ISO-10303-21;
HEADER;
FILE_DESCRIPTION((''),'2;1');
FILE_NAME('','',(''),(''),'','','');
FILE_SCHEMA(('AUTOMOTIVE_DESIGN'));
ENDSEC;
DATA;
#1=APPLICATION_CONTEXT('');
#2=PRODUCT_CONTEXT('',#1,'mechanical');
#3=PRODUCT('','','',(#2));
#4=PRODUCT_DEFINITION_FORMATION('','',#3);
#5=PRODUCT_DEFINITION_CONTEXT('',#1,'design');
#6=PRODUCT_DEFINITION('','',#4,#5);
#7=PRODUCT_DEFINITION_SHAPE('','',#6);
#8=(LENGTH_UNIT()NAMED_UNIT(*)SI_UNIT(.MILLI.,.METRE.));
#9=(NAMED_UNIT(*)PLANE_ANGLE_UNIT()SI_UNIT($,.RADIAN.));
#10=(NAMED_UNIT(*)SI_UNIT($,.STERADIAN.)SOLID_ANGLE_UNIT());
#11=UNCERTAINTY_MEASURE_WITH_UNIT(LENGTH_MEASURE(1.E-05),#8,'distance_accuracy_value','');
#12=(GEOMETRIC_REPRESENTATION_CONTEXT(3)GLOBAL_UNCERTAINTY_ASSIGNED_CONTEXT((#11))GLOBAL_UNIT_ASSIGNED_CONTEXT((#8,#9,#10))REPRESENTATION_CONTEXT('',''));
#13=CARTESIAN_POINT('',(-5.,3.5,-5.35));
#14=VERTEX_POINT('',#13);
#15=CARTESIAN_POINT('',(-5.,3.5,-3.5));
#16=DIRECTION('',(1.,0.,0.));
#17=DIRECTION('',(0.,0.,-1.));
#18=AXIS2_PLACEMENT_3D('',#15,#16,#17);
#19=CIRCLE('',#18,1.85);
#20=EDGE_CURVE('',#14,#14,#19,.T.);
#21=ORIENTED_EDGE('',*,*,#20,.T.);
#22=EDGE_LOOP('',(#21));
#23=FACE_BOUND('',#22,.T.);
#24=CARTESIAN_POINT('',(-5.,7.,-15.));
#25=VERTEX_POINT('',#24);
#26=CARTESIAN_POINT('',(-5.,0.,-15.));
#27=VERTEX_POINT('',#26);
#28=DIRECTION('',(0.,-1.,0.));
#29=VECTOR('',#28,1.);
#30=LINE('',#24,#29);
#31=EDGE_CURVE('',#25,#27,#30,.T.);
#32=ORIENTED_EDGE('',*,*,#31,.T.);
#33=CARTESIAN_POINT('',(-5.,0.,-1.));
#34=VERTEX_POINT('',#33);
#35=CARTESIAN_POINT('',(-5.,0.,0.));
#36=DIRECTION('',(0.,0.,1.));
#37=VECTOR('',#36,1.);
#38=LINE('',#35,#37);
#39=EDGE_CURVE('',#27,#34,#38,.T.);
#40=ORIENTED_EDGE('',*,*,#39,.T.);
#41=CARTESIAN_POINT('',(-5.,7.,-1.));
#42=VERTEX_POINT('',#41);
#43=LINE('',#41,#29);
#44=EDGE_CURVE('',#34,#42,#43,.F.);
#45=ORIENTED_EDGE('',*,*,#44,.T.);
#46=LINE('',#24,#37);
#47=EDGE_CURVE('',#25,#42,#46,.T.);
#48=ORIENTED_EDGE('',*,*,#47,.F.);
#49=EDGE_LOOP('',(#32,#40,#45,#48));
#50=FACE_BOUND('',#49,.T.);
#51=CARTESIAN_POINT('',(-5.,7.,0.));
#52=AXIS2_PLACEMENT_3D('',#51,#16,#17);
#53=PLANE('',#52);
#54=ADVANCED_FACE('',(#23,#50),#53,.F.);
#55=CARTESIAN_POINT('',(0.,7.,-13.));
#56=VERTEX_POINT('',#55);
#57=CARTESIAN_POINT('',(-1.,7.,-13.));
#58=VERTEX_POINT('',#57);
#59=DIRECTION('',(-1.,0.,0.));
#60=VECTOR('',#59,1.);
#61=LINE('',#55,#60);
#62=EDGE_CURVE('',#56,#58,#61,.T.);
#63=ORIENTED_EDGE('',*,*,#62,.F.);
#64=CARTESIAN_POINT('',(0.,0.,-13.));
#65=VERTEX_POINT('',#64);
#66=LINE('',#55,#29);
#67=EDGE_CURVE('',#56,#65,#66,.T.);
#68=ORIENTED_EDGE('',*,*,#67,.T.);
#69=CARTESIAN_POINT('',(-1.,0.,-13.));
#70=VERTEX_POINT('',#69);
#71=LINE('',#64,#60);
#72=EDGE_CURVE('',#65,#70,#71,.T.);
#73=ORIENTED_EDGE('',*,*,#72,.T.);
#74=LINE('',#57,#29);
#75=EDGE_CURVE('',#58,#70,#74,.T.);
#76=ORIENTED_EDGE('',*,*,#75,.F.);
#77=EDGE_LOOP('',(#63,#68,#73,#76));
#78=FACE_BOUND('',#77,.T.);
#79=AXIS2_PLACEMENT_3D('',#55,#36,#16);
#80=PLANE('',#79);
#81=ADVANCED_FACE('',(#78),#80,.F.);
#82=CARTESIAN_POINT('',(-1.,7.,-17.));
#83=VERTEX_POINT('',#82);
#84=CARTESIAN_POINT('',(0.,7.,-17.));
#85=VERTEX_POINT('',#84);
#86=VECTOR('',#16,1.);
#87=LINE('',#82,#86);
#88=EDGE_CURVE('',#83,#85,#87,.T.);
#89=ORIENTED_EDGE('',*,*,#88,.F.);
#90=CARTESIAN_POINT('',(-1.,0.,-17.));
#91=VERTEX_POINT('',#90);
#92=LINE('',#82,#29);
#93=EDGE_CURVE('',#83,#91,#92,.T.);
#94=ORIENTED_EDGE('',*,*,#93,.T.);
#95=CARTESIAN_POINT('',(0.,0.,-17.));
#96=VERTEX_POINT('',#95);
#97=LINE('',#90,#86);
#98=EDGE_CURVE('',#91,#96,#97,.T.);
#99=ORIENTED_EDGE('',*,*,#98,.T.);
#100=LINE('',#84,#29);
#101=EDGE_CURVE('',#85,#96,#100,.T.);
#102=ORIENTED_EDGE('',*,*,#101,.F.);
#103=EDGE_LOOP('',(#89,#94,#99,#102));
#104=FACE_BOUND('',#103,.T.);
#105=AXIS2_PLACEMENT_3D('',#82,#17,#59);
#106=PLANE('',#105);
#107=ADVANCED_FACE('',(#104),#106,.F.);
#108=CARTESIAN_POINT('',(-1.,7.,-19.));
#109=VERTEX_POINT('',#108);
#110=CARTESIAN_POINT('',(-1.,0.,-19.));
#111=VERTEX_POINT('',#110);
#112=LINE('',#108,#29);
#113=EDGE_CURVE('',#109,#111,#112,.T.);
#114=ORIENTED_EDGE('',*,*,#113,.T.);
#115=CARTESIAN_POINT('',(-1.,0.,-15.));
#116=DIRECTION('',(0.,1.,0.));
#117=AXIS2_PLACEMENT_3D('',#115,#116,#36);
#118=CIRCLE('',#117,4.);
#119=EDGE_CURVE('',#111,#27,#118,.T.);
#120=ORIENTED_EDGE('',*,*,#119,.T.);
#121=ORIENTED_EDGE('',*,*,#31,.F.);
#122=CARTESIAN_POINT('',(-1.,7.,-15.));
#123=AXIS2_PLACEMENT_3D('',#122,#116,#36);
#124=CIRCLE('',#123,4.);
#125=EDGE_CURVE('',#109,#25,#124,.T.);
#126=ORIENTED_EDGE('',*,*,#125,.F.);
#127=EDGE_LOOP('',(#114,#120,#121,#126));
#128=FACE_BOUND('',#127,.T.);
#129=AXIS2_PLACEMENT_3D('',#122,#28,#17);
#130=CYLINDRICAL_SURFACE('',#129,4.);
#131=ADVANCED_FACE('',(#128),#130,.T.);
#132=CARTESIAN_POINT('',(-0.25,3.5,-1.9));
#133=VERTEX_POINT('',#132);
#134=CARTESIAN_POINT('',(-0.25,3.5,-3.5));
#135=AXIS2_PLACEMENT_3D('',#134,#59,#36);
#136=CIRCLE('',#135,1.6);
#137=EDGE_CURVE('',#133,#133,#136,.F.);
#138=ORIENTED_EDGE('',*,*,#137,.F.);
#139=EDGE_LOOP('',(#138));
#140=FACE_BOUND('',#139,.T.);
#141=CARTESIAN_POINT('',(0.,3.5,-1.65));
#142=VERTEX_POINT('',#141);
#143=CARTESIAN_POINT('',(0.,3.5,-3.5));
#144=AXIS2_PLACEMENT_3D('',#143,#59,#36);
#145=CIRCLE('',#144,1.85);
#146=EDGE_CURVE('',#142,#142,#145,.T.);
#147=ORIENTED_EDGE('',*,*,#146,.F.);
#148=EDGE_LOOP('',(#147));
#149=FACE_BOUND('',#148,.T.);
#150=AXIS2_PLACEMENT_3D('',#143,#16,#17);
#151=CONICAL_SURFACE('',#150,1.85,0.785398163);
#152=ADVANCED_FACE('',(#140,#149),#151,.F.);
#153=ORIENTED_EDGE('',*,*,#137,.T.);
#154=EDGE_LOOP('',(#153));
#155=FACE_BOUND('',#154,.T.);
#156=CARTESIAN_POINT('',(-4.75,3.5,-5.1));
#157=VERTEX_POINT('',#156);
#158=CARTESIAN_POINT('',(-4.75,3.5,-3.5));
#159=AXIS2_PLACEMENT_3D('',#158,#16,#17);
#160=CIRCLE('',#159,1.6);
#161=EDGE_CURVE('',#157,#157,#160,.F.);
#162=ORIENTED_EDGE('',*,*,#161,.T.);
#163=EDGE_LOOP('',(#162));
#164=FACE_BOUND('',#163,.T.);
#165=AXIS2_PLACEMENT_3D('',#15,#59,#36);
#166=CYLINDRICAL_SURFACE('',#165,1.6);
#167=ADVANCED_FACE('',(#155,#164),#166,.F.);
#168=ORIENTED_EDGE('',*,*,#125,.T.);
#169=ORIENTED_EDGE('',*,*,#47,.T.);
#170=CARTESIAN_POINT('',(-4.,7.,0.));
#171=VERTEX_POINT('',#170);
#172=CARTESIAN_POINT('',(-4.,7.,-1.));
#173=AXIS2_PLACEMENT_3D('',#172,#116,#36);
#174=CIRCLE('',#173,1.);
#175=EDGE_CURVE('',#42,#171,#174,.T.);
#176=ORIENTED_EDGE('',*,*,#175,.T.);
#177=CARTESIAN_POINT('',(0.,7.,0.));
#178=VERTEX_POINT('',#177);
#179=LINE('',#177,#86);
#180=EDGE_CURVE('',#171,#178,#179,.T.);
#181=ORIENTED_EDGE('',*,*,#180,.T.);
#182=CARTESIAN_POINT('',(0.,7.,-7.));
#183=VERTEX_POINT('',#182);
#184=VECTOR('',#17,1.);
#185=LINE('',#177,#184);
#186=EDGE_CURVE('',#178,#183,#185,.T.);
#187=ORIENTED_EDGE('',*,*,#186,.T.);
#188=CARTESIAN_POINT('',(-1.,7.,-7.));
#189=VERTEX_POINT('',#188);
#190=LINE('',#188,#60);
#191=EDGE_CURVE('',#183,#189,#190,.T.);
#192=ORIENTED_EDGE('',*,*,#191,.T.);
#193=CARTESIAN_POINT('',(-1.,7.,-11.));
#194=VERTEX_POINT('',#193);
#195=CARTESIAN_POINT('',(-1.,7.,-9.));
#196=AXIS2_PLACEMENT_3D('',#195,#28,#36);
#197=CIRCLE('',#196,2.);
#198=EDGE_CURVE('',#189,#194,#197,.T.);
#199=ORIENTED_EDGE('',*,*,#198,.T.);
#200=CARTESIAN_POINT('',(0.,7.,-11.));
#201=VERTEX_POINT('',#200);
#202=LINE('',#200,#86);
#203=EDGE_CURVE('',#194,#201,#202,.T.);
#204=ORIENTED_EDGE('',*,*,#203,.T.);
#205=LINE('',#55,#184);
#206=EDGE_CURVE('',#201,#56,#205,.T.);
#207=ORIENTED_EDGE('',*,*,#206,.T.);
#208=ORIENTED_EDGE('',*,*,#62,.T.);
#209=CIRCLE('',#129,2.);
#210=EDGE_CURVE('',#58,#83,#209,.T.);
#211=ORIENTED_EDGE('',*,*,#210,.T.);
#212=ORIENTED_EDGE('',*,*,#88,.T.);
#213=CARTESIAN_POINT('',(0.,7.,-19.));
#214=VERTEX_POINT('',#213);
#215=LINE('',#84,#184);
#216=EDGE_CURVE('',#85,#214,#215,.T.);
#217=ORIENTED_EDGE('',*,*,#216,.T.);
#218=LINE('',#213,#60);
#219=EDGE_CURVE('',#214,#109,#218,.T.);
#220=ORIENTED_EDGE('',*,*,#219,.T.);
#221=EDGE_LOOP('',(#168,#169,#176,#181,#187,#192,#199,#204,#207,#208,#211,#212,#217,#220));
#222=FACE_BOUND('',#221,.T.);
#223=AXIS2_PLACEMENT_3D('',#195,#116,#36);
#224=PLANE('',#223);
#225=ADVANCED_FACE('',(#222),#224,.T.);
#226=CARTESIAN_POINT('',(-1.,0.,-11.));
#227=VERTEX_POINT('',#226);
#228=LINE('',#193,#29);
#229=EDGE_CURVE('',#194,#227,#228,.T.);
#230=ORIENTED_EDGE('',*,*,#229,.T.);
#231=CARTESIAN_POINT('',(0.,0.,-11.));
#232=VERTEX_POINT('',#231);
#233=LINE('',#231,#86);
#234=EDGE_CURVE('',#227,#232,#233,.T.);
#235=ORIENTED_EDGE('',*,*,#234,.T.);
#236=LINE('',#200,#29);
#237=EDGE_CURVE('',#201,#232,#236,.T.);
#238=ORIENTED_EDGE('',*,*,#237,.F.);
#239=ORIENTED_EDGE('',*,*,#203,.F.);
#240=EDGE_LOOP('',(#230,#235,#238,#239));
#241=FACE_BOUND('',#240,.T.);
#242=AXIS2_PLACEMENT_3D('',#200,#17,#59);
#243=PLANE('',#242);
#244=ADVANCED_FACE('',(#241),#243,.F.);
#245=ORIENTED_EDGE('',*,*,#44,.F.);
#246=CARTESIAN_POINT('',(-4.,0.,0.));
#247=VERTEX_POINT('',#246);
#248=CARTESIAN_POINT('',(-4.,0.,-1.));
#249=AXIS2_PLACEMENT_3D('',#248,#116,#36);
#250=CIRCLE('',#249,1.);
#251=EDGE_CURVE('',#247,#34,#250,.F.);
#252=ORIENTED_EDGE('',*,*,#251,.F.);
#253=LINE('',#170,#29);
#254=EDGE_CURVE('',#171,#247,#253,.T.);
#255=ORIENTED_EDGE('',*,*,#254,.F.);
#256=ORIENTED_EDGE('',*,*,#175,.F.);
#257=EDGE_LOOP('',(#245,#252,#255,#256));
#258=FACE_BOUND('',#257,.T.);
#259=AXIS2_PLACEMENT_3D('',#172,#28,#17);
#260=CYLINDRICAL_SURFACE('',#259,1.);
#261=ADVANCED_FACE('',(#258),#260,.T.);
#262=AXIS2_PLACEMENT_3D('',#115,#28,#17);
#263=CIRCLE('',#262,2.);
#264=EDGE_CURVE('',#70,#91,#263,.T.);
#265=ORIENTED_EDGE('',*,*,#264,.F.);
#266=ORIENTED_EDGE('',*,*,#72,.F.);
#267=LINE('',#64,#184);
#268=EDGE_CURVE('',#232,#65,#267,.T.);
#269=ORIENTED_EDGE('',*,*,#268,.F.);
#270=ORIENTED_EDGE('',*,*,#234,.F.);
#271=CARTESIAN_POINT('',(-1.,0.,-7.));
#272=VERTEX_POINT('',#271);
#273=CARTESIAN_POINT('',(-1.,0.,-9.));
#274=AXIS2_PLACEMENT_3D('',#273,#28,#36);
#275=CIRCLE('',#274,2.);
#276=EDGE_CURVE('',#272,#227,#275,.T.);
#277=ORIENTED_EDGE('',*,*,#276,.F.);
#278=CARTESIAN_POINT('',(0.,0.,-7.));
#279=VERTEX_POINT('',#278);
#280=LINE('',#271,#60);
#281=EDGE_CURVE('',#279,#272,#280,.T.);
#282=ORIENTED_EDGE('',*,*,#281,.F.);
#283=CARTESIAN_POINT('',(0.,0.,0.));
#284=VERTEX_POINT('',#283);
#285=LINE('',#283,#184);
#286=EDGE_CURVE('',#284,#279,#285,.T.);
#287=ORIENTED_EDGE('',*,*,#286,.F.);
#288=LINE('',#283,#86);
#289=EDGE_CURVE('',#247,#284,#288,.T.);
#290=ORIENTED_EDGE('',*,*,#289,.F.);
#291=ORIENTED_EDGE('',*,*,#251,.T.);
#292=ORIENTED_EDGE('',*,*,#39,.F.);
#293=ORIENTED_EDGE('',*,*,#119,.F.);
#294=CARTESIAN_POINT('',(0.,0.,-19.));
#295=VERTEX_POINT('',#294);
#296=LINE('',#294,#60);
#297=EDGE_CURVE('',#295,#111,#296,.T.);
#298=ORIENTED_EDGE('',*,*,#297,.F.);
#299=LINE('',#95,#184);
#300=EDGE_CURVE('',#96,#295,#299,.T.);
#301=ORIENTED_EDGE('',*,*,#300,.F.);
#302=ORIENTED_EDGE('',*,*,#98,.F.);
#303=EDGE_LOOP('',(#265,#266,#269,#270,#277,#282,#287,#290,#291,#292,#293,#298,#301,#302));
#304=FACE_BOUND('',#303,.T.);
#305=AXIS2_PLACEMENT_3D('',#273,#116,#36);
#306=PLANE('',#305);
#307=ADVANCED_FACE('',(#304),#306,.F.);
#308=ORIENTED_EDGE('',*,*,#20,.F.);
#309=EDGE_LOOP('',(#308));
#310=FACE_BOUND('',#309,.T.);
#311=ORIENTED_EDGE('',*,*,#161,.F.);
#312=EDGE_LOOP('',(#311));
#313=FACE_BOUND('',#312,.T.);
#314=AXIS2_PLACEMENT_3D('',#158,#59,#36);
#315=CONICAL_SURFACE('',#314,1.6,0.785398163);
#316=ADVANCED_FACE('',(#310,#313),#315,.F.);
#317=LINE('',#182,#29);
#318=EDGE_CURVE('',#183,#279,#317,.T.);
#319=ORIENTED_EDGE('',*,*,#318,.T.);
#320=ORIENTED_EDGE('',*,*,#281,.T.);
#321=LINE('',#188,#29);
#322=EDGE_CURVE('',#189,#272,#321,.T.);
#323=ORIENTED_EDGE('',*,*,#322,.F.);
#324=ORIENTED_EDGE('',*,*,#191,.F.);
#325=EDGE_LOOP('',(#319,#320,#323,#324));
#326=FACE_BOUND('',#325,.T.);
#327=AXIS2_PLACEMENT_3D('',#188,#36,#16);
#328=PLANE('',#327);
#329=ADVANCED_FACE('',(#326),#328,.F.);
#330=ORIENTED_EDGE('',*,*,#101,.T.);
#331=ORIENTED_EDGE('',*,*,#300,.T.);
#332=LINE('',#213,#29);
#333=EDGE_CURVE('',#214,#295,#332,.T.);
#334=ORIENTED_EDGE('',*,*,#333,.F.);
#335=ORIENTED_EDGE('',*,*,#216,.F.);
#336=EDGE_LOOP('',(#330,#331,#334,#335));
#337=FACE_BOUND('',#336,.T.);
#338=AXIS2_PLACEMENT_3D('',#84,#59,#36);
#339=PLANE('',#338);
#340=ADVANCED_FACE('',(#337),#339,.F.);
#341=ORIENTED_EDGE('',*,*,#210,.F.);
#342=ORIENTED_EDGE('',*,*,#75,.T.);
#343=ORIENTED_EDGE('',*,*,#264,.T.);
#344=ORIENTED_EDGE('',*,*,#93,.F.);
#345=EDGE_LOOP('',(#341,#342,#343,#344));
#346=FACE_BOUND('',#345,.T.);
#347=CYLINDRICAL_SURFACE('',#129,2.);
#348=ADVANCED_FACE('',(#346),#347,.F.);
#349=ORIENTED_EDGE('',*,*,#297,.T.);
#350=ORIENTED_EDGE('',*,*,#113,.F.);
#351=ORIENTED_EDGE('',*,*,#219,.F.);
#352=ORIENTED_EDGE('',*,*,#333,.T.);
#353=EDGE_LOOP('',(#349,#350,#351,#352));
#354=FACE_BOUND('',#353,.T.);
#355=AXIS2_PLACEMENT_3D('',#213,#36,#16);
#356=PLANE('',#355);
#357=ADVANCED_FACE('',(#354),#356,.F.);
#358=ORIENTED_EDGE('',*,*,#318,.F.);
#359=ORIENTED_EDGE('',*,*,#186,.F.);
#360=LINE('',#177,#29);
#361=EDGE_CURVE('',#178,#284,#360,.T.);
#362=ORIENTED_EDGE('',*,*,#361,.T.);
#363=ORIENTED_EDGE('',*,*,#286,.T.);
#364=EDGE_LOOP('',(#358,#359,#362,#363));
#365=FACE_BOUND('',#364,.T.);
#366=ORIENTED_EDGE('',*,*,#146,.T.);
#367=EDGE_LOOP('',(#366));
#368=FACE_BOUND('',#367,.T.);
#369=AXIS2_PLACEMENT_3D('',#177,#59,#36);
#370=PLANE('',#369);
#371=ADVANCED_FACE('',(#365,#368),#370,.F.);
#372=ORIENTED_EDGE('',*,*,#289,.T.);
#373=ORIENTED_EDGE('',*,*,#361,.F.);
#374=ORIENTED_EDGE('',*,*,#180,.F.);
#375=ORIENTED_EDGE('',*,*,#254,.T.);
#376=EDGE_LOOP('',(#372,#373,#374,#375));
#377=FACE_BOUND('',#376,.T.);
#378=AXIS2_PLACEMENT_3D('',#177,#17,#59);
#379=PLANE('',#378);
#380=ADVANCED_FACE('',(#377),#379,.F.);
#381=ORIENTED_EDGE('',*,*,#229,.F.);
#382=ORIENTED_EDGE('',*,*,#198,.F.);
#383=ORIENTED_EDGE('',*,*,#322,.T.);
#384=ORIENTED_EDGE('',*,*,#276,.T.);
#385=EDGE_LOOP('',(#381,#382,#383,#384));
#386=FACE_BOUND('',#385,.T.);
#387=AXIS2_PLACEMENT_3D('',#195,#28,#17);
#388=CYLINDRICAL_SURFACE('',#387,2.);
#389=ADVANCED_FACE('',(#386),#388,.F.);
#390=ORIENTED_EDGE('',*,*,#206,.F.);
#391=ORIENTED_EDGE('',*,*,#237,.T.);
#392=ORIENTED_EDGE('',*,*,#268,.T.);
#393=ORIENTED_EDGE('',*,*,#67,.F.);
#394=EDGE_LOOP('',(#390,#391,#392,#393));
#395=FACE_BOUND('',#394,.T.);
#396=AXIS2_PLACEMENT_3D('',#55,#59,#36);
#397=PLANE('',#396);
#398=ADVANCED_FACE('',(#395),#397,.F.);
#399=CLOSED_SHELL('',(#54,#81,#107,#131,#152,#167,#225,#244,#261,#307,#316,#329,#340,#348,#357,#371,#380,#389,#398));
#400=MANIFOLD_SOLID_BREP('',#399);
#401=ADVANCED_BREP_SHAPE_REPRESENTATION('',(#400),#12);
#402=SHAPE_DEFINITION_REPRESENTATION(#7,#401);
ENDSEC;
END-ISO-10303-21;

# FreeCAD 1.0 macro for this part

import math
import FreeCAD as App
import Part
import Sketcher
from FreeCAD import Vector
Q = App.Units.Quantity


def edges_at(feature, points):
    """Names of the edges that pass closest to the given points."""
    edges = feature.Shape.Edges
    near = lambda p: min(range(len(edges)), key=lambda i: edges[i].distToShape(Part.Vertex(*p))[0])
    return sorted({f"Edge{near(p) + 1}" for p in points})

doc = App.newDocument("Part")
params = doc.addObject("Spreadsheet::Sheet", "Params")
for row, (alias, value) in enumerate([
    ("sketch1_radius", "2 mm"),
    ("sketch1_radius2", "4 mm"),
    ("sketch1_width", "5 mm"),
    ("sketch1_height", "7 mm"),
    ("pad1_length", "7 mm"),
    ("sketch2_diameter", "3.2 mm"),
    ("hole_diameter", "3.2 mm"),
    ("chamfer_size", "0.25 mm"),
    ("fillet_radius", "1 mm"),
], start=1):
    params.set(f"A{row}", alias)
    params.set(f"B{row}", "=" + value)
    params.setAlias(f"B{row}", alias)

body = doc.addObject("PartDesign::Body", "Body")

# Sketch on XZ plane
sketch1 = doc.addObject("Sketcher::SketchObject", "Sketch")
body.addObject(sketch1)
sketch1.AttachmentSupport = (doc.XZ_Plane, [""])
sketch1.MapMode = "FlatFace"
sketch1.addGeometry([
    Part.LineSegment(Vector(-5, 0, 0), Vector(0, 0, 0)),  # 0
    Part.LineSegment(Vector(0, 0, 0), Vector(0, -7, 0)),  # 1
    Part.LineSegment(Vector(0, -7, 0), Vector(-1, -7, 0)),  # 2
    Part.ArcOfCircle(Part.Circle(Vector(-1, -9, 0), Vector(0, 0, 1), 2), math.radians(90), math.radians(270)),  # 3
    Part.LineSegment(Vector(-1, -11, 0), Vector(0, -11, 0)),  # 4
    Part.LineSegment(Vector(0, -11, 0), Vector(0, -13, 0)),  # 5
    Part.LineSegment(Vector(0, -13, 0), Vector(-1, -13, 0)),  # 6
    Part.ArcOfCircle(Part.Circle(Vector(-1, -15, 0), Vector(0, 0, 1), 2), math.radians(90), math.radians(270)),  # 7
    Part.LineSegment(Vector(-1, -17, 0), Vector(0, -17, 0)),  # 8
    Part.LineSegment(Vector(0, -17, 0), Vector(0, -19, 0)),  # 9
    Part.LineSegment(Vector(0, -19, 0), Vector(-1, -19, 0)),  # 10
    Part.ArcOfCircle(Part.Circle(Vector(-1, -15, 0), Vector(0, 0, 1), 4), math.radians(180), math.radians(270)),  # 11
    Part.LineSegment(Vector(-5, -15, 0), Vector(-5, 0, 0)),  # 12
], False)
sketch1.addConstraint([
    Sketcher.Constraint("Coincident", 0, 2, 1, 1),
    Sketcher.Constraint("Coincident", 1, 2, 2, 1),
    Sketcher.Constraint("Tangent", 2, 2, 3, 1),
    Sketcher.Constraint("Tangent", 3, 2, 4, 1),
    Sketcher.Constraint("Coincident", 4, 2, 5, 1),
    Sketcher.Constraint("Coincident", 5, 2, 6, 1),
    Sketcher.Constraint("Tangent", 6, 2, 7, 1),
    Sketcher.Constraint("Tangent", 7, 2, 8, 1),
    Sketcher.Constraint("Coincident", 8, 2, 9, 1),
    Sketcher.Constraint("Coincident", 9, 2, 10, 1),
    Sketcher.Constraint("Tangent", 10, 2, 11, 2),
    Sketcher.Constraint("Tangent", 11, 1, 12, 1),
    Sketcher.Constraint("Coincident", 12, 2, 0, 1),
    Sketcher.Constraint("Horizontal", 0),
    Sketcher.Constraint("Vertical", 1),
    Sketcher.Constraint("Horizontal", 2),
    Sketcher.Constraint("Horizontal", 4),
    Sketcher.Constraint("Vertical", 5),
    Sketcher.Constraint("Horizontal", 6),
    Sketcher.Constraint("Horizontal", 8),
    Sketcher.Constraint("Vertical", 9),
    Sketcher.Constraint("Horizontal", 10),
    Sketcher.Constraint("Vertical", 12),
    Sketcher.Constraint("Coincident", 0, 2, -1, 1),
    Sketcher.Constraint("Coincident", 11, 3, 7, 3),
    Sketcher.Constraint("Equal", 3, 7),
    Sketcher.Constraint("PointOnObject", 4, 2, -2),
    Sketcher.Constraint("PointOnObject", 8, 2, -2),
    Sketcher.Constraint("Vertical", 3, 3, 7, 3),
    Sketcher.Constraint("Equal", 5, 9),
    Sketcher.Constraint("Radius", 3, Q("2 mm")),
    Sketcher.Constraint("Radius", 11, Q("4 mm")),
    Sketcher.Constraint("DistanceX", 0, 1, 0, 2, Q("5 mm")),
    Sketcher.Constraint("DistanceY", 1, 2, 1, 1, Q("7 mm")),
])
sketch1.setExpression("Constraints[30]", "Params.sketch1_radius")
sketch1.setExpression("Constraints[31]", "Params.sketch1_radius2")
sketch1.setExpression("Constraints[32]", "Params.sketch1_width")
sketch1.setExpression("Constraints[33]", "Params.sketch1_height")
pad1 = doc.addObject("PartDesign::Pad", "Pad")
body.addObject(pad1)
pad1.Profile = sketch1
pad1.setExpression("Length", "Params.pad1_length")
pad1.Reversed = True

# Sketch on YZ plane
sketch2 = doc.addObject("Sketcher::SketchObject", "Sketch001")
body.addObject(sketch2)
sketch2.AttachmentSupport = (doc.YZ_Plane, [""])
sketch2.MapMode = "FlatFace"
sketch2.AttachmentOffset = App.Placement(Vector(0, 0, -5), App.Rotation())
sketch2.addGeometry(Part.Circle(Vector(3.5, -3.5, 0), Vector(0, 0, 1), 1.6), False)
sketch2.addConstraint([
    Sketcher.Constraint("Diameter", 0, Q("3.2 mm")),
    Sketcher.Constraint("DistanceX", -1, 1, 0, 3, Q("3.5 mm")),
    Sketcher.Constraint("DistanceY", 0, 3, -1, 1, Q("3.5 mm")),
])
sketch2.setExpression("Constraints[0]", "Params.sketch2_diameter")
doc.recompute()
hole = doc.addObject("PartDesign::Hole", "Hole")
body.addObject(hole)
hole.Profile = sketch2
hole.ThreadType = "None"
hole.setExpression("Diameter", "Params.hole_diameter")
hole.DepthType = "ThroughAll"
hole.Reversed = True
doc.recompute()

chamfer = doc.addObject("PartDesign::Chamfer", "Chamfer")
body.addObject(chamfer)
chamfer.Base = (hole, edges_at(hole, [(-5, 3.5, -1.9), (0, 3.5, -1.9)]))
chamfer.setExpression("Size", "Params.chamfer_size")
doc.recompute()

fillet = doc.addObject("PartDesign::Fillet", "Fillet")
body.addObject(fillet)
fillet.Base = (chamfer, edges_at(chamfer, [(-5, 3.5, 0)]))
fillet.setExpression("Radius", "Params.fillet_radius")

doc.recompute()
